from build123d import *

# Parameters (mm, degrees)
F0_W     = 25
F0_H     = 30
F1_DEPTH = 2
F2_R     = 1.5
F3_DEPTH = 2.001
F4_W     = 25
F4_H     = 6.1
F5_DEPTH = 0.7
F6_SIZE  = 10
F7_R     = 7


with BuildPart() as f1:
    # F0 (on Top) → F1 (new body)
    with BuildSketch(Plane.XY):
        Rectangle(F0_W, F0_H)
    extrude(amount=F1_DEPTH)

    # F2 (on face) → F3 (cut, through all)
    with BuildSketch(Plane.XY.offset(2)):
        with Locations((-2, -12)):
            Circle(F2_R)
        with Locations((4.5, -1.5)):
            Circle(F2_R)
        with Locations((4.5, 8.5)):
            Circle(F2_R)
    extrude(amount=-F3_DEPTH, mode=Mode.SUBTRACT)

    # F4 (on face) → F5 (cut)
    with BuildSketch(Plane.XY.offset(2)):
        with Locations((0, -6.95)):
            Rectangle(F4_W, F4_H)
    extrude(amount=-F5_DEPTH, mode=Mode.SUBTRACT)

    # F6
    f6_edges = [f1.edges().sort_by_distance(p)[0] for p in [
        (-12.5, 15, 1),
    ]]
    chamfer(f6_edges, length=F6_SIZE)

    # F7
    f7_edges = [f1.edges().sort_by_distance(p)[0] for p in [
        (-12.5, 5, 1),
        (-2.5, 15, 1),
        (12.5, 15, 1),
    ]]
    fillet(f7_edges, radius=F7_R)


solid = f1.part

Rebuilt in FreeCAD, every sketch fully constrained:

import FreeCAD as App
import Part
import Sketcher

V = App.Vector


def edges_at(feature, points):
    """Names of the edges that pass closest to the given points."""
    edges = feature.Shape.Edges
    near = lambda p: min(range(len(edges)), key=lambda i: edges[i].distToShape(Part.Vertex(*p))[0])
    return sorted({f"Edge{near(p) + 1}" for p in points})

doc = App.newDocument("Part")
params = doc.addObject("Spreadsheet::Sheet", "Params")
for row, (alias, value) in enumerate([
    ("sketch1_width", "25 mm"),
    ("sketch1_height", "30 mm"),
    ("pad1_length", "2 mm"),
    ("sketch2_diameter", "3 mm"),
    ("sketch3_width", "25 mm"),
    ("sketch3_height", "6.1 mm"),
    ("pocket2_length", "0.7 mm"),
    ("chamfer_size", "10 mm"),
    ("fillet_radius", "7 mm"),
], start=1):
    params.set(f"A{row}", alias)
    params.set(f"B{row}", "=" + value)
    params.setAlias(f"B{row}", alias)

body = doc.addObject("PartDesign::Body", "Body")

sketch1 = body.newObject("Sketcher::SketchObject", "Sketch")
sketch1.AttachmentSupport = (doc.getObject("XY_Plane"), [""])
sketch1.MapMode = "FlatFace"
sketch1.addGeometry(Part.LineSegment(V(-12, 15, 0), V(-12, -15, 0)), False)
sketch1.addGeometry(Part.LineSegment(V(-12, -15, 0), V(12, -15, 0)), False)
sketch1.addGeometry(Part.LineSegment(V(12, -15, 0), V(12, 15, 0)), False)
sketch1.addGeometry(Part.LineSegment(V(12, 15, 0), V(-12, 15, 0)), False)
sketch1.addConstraint(Sketcher.Constraint("Coincident", 0, 2, 1, 1))
sketch1.addConstraint(Sketcher.Constraint("Coincident", 1, 2, 2, 1))
sketch1.addConstraint(Sketcher.Constraint("Coincident", 2, 2, 3, 1))
sketch1.addConstraint(Sketcher.Constraint("Coincident", 3, 2, 0, 1))
sketch1.addConstraint(Sketcher.Constraint("Vertical", 0))
sketch1.addConstraint(Sketcher.Constraint("Horizontal", 1))
sketch1.addConstraint(Sketcher.Constraint("Vertical", 2))
sketch1.addConstraint(Sketcher.Constraint("Horizontal", 3))
sketch1.addConstraint(Sketcher.Constraint("Symmetric", 0, 2, 2, 2, -1, 1))
sketch1.addConstraint(Sketcher.Constraint("DistanceX", 1, 1, 1, 2, 25.0))
sketch1.addConstraint(Sketcher.Constraint("DistanceY", 0, 2, 0, 1, 30.0))
sketch1.setExpression("Constraints[9]", "Params.sketch1_width")
sketch1.setExpression("Constraints[10]", "Params.sketch1_height")
pad1 = body.newObject("PartDesign::Pad", "Pad")
pad1.Profile = sketch1
pad1.setExpression("Length", "Params.pad1_length")

sketch2 = body.newObject("Sketcher::SketchObject", "Sketch001")
sketch2.AttachmentSupport = (doc.getObject("XY_Plane"), [""])
sketch2.MapMode = "FlatFace"
sketch2.AttachmentOffset = App.Placement(V(0, 0, 2), App.Rotation())
sketch2.addGeometry(Part.Circle(V(-2, -12, 0), V(0, 0, 1), 1.5), False)
sketch2.addGeometry(Part.Circle(V(4.5, -1.5, 0), V(0, 0, 1), 1.5), False)
sketch2.addGeometry(Part.Circle(V(4.5, 8.5, 0), V(0, 0, 1), 1.5), False)
sketch2.addConstraint(Sketcher.Constraint("Equal", 0, 1))
sketch2.addConstraint(Sketcher.Constraint("Equal", 1, 2))
sketch2.addConstraint(Sketcher.Constraint("Vertical", 1, 3, 2, 3))
sketch2.addConstraint(Sketcher.Constraint("Diameter", 0, 3.0))
sketch2.addConstraint(Sketcher.Constraint("DistanceX", 0, 3, -1, 1, 2.0))
sketch2.addConstraint(Sketcher.Constraint("DistanceY", 0, 3, -1, 1, 12.0))
sketch2.addConstraint(Sketcher.Constraint("DistanceY", 1, 3, 2, 3, 10.0))
sketch2.addConstraint(Sketcher.Constraint("DistanceX", -1, 1, 1, 3, 4.5))
sketch2.addConstraint(Sketcher.Constraint("DistanceY", 1, 3, -1, 1, 1.5))
sketch2.setExpression("Constraints[3]", "Params.sketch2_diameter")
pocket1 = body.newObject("PartDesign::Pocket", "Pocket")
pocket1.Profile = sketch2
pocket1.Type = "ThroughAll"

sketch3 = body.newObject("Sketcher::SketchObject", "Sketch002")
sketch3.AttachmentSupport = (doc.getObject("XY_Plane"), [""])
sketch3.MapMode = "FlatFace"
sketch3.AttachmentOffset = App.Placement(V(0, 0, 2), App.Rotation())
sketch3.addGeometry(Part.LineSegment(V(-12, -4, 0), V(-12, -10, 0)), False)
sketch3.addGeometry(Part.LineSegment(V(-12, -10, 0), V(12, -10, 0)), False)
sketch3.addGeometry(Part.LineSegment(V(12, -10, 0), V(12, -4, 0)), False)
sketch3.addGeometry(Part.LineSegment(V(12, -4, 0), V(-12, -4, 0)), False)
sketch3.addConstraint(Sketcher.Constraint("Coincident", 0, 2, 1, 1))
sketch3.addConstraint(Sketcher.Constraint("Coincident", 1, 2, 2, 1))
sketch3.addConstraint(Sketcher.Constraint("Coincident", 2, 2, 3, 1))
sketch3.addConstraint(Sketcher.Constraint("Coincident", 3, 2, 0, 1))
sketch3.addConstraint(Sketcher.Constraint("Vertical", 0))
sketch3.addConstraint(Sketcher.Constraint("Horizontal", 1))
sketch3.addConstraint(Sketcher.Constraint("Vertical", 2))
sketch3.addConstraint(Sketcher.Constraint("Horizontal", 3))
sketch3.addConstraint(Sketcher.Constraint("DistanceX", 1, 1, 1, 2, 25.0))
sketch3.addConstraint(Sketcher.Constraint("DistanceY", 0, 2, 0, 1, 6.1))
sketch3.addConstraint(Sketcher.Constraint("DistanceY", 0, 2, -1, 1, 10.0))
sketch3.addConstraint(Sketcher.Constraint("DistanceX", 0, 2, -1, 1, 12.5))
sketch3.setExpression("Constraints[8]", "Params.sketch3_width")
sketch3.setExpression("Constraints[9]", "Params.sketch3_height")
pocket2 = body.newObject("PartDesign::Pocket", "Pocket001")
pocket2.Profile = sketch3
pocket2.setExpression("Length", "Params.pocket2_length")
doc.recompute()

chamfer = body.newObject("PartDesign::Chamfer", "Chamfer")
chamfer.Base = (pocket2, edges_at(pocket2, [(-12.5, 15, 1)]))
chamfer.setExpression("Size", "Params.chamfer_size")
doc.recompute()

fillet = body.newObject("PartDesign::Fillet", "Fillet")
fillet.Base = (chamfer, edges_at(chamfer, [(-12.5, 5, 1), (-2.5, 15, 1), (12.5, 15, 1)]))
fillet.setExpression("Radius", "Params.fillet_radius")

doc.recompute()
